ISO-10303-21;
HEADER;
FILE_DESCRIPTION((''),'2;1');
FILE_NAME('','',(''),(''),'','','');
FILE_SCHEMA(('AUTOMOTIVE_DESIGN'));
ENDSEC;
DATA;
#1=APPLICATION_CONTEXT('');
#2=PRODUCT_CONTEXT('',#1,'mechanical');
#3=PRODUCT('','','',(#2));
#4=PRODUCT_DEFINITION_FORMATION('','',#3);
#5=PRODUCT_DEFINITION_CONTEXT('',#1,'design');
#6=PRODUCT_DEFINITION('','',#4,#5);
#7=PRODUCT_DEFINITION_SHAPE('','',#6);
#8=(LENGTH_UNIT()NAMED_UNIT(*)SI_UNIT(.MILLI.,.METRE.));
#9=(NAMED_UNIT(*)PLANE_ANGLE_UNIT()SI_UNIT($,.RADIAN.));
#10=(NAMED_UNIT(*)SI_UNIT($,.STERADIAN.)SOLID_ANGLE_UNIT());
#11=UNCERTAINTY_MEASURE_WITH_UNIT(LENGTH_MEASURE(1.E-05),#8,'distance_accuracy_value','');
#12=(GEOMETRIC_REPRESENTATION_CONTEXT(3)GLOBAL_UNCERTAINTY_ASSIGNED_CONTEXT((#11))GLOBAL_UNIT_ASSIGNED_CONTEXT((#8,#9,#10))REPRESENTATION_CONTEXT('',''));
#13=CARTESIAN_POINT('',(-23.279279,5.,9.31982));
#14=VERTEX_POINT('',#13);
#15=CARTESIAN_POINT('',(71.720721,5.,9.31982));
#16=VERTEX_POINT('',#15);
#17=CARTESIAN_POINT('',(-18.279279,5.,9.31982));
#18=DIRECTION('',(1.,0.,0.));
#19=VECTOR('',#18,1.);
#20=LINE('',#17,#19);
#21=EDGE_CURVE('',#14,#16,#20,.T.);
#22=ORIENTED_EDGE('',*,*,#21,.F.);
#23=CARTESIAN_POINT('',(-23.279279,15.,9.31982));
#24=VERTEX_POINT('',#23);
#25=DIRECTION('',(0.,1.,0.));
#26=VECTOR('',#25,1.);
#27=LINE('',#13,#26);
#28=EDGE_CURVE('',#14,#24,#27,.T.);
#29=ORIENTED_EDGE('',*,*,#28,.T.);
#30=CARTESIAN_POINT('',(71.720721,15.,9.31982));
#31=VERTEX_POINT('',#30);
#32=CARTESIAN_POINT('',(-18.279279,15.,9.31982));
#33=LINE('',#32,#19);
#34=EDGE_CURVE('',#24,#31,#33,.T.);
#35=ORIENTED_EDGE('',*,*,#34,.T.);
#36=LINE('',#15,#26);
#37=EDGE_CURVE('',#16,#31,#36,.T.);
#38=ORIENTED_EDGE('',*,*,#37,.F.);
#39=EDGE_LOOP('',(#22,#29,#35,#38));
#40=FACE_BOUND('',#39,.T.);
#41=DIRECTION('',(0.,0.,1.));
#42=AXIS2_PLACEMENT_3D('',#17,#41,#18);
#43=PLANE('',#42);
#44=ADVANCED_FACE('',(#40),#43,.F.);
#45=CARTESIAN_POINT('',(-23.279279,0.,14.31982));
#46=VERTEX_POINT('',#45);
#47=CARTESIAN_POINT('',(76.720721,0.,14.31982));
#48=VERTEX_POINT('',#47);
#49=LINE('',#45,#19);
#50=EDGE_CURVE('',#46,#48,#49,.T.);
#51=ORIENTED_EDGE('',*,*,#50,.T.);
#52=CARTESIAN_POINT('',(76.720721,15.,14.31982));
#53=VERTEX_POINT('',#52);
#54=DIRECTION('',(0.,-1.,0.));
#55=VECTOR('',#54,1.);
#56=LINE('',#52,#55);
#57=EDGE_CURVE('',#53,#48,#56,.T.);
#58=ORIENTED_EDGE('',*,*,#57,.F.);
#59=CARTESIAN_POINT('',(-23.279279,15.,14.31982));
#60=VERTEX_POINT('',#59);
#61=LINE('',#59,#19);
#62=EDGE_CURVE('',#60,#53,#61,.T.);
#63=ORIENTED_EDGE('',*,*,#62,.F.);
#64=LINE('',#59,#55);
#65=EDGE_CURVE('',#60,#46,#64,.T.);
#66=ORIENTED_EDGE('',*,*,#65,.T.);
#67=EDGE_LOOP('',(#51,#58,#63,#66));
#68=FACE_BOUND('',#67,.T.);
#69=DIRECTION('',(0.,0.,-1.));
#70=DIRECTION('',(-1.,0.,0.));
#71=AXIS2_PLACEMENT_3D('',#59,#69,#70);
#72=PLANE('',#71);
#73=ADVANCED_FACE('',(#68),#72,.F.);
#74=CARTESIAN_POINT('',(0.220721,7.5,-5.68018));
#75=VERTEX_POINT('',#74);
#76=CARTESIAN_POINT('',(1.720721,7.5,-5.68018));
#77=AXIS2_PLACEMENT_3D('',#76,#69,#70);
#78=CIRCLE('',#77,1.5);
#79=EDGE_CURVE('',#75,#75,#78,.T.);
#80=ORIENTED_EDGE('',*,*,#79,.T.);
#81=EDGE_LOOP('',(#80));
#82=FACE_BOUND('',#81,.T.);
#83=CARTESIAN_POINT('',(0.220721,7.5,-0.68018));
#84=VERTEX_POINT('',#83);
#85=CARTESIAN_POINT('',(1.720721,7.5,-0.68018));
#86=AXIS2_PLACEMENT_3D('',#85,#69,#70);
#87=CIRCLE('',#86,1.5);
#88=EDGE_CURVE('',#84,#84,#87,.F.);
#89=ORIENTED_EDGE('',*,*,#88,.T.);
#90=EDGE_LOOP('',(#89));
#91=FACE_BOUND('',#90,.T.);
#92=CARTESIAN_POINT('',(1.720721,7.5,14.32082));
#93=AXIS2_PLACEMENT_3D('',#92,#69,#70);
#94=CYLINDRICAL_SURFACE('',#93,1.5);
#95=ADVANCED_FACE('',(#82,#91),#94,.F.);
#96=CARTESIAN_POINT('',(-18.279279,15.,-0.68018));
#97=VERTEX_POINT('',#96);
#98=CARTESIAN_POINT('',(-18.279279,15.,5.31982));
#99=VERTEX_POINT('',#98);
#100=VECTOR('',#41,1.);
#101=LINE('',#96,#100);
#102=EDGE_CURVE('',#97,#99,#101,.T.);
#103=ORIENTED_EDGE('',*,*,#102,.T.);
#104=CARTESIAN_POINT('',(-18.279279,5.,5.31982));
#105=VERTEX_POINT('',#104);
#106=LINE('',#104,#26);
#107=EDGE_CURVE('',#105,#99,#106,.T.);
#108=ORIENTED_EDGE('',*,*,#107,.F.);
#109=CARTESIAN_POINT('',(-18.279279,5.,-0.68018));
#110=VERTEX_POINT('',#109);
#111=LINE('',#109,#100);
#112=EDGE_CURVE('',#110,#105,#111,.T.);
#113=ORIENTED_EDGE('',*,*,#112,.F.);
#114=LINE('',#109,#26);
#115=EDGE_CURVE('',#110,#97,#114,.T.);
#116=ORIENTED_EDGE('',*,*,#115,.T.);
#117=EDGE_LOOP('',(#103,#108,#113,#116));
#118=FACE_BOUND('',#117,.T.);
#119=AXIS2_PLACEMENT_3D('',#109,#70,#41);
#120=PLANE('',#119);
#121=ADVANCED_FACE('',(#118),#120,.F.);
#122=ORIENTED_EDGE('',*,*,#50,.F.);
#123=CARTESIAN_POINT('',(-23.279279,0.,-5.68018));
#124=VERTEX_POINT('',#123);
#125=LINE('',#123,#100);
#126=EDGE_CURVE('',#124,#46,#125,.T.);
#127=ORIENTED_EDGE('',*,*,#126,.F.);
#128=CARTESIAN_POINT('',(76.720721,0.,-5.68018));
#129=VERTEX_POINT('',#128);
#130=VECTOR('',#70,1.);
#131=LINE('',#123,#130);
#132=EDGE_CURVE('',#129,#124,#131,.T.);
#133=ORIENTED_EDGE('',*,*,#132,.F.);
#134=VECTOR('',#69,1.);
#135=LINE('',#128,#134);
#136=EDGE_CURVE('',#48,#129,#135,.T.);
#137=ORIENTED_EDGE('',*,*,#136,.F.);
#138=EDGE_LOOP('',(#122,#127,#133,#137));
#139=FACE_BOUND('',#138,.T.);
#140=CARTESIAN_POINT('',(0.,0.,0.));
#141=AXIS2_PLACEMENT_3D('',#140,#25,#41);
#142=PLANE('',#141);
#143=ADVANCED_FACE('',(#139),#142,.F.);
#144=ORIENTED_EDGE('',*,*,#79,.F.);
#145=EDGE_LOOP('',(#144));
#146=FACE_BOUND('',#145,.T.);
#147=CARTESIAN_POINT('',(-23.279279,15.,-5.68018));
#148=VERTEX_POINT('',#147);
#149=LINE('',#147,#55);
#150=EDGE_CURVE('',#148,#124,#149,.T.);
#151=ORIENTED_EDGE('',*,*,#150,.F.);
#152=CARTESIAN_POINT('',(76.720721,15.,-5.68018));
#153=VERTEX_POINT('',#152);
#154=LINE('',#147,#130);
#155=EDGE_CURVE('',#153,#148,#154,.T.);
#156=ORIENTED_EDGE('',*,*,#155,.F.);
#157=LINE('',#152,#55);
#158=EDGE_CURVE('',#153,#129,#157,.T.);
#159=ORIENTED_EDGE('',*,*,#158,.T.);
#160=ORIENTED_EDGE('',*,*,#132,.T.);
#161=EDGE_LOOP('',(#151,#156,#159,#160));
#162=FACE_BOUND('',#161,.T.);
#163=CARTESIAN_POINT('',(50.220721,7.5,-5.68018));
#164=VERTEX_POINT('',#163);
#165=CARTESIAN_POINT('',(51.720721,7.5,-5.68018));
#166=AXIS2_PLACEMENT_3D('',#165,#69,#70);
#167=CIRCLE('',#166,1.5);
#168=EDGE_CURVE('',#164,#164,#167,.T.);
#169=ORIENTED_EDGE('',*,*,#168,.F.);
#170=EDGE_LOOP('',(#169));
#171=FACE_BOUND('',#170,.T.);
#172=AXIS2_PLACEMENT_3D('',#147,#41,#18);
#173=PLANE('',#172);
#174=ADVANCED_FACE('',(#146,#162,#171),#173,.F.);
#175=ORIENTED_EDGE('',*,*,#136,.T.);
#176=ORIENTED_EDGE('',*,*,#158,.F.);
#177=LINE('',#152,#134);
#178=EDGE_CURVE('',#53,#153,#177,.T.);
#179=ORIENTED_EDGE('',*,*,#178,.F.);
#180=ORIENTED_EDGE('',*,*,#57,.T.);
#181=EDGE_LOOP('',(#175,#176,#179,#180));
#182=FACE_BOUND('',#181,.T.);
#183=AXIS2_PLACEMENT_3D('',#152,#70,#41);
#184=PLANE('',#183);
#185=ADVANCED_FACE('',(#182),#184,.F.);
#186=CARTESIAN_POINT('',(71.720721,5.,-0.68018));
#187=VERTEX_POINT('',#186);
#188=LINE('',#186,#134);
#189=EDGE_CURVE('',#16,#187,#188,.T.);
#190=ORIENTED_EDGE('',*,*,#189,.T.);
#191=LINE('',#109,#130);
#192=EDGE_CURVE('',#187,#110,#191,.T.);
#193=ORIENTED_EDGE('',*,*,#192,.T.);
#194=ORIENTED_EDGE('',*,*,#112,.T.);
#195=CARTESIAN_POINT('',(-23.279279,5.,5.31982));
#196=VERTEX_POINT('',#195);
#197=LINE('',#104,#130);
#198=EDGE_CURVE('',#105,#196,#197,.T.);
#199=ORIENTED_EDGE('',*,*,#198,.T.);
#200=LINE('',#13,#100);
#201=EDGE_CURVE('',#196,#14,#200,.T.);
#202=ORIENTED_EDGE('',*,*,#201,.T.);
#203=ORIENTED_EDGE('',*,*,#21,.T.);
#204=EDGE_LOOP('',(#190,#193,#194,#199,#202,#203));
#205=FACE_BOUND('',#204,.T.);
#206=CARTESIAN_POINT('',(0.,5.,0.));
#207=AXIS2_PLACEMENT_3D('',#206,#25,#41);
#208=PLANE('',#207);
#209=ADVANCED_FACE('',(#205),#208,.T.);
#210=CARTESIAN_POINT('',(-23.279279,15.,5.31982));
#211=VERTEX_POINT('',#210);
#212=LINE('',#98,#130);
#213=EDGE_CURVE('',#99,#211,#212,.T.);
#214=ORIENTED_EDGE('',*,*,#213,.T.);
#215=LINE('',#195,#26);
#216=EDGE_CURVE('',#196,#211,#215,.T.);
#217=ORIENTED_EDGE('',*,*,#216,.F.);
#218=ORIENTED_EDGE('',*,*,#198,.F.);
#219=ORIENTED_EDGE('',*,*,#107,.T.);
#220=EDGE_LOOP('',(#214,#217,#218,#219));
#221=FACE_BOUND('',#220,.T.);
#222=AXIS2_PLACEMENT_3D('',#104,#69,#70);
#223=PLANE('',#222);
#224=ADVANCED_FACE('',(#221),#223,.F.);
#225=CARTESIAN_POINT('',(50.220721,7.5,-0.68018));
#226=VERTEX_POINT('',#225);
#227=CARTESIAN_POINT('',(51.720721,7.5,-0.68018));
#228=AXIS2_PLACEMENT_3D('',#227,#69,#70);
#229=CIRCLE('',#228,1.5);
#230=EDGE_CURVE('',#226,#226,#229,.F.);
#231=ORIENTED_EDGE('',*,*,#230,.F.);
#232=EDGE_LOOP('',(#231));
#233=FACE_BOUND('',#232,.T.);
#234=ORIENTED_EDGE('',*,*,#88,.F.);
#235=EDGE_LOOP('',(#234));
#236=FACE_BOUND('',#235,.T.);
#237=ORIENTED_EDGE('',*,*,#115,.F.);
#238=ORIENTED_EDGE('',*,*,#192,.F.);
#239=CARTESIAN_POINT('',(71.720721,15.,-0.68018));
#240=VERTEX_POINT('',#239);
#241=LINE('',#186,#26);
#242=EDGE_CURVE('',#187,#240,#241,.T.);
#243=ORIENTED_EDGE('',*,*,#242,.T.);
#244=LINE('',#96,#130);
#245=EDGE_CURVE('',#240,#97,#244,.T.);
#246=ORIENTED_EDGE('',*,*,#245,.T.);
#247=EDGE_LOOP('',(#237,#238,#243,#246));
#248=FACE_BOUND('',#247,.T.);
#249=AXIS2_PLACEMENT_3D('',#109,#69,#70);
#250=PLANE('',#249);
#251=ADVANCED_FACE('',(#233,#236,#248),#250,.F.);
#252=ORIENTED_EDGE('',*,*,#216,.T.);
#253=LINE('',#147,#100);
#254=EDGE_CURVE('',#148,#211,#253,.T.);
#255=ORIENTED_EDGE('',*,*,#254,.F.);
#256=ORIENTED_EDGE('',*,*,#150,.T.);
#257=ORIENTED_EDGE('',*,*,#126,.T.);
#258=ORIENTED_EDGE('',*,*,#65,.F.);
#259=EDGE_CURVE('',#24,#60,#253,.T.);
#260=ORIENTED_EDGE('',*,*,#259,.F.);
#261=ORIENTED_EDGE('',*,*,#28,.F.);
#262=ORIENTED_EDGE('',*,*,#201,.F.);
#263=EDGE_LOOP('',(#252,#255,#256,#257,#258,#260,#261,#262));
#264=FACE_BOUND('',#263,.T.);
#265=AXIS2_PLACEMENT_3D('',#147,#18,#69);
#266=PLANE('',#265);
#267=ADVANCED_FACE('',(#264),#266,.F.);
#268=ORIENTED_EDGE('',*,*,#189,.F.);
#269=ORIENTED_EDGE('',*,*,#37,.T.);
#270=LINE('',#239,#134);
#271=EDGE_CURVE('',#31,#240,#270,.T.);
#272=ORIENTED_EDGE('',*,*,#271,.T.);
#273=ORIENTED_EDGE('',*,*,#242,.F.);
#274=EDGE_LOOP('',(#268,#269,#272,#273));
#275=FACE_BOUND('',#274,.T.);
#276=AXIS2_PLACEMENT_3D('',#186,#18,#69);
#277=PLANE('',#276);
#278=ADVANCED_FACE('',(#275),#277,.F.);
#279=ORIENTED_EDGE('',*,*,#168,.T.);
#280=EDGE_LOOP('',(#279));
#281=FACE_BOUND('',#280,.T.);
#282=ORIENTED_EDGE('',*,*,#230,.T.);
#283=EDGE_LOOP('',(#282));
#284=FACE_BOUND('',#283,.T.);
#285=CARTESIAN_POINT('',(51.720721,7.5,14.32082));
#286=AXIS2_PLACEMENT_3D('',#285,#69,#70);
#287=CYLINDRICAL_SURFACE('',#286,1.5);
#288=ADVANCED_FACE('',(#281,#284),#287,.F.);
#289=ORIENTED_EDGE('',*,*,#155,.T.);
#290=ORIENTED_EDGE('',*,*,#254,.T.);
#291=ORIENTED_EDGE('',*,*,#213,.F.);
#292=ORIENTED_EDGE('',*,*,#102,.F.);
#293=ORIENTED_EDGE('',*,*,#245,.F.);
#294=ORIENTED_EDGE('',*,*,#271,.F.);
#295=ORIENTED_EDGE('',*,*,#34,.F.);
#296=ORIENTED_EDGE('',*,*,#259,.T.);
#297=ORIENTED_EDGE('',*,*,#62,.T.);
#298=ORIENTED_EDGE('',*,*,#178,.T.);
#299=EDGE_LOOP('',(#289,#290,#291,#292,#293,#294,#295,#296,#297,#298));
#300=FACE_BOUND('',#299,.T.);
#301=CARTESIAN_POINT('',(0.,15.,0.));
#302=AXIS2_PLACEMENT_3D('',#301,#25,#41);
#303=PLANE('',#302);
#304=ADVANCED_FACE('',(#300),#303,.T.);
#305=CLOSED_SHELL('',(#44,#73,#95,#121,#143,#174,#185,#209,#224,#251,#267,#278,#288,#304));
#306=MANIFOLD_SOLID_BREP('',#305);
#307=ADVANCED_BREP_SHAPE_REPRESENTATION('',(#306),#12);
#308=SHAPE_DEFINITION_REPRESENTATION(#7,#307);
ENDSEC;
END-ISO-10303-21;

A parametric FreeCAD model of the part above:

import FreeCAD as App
import Part
import Sketcher
from FreeCAD import Vector


def add_polygon(sketch, points):
    """Adds a closed chain of lines whose ends are joined by coincident constraints."""
    first, n = sketch.GeometryCount, len(points)
    for a, b in zip(points, points[1:] + points[:1]):
        sketch.addGeometry(Part.LineSegment(App.Vector(*a, 0), App.Vector(*b, 0)), False)
    for i in range(n):
        sketch.addConstraint(Sketcher.Constraint("Coincident", first + i, 2, first + (i + 1) % n, 1))

doc = App.newDocument("Part")
params = doc.addObject("Spreadsheet::Sheet", "Params")
for row, (alias, value) in enumerate([
    ("sketch1_width", "100 mm"),
    ("sketch1_height", "20 mm"),
    ("pad1_length", "15 mm"),
    ("sketch2_width", "90 mm"),
    ("sketch2_height", "10 mm"),
    ("pocket1_length", "10 mm"),
    ("sketch3_width", "5 mm"),
    ("sketch3_height", "4 mm"),
    ("pocket2_length", "10 mm"),
    ("sketch4_diameter", "3 mm"),
    ("sketch5_diameter", "3 mm"),
], start=1):
    params.set(f"A{row}", alias)
    params.set(f"B{row}", "=" + value)
    params.setAlias(f"B{row}", alias)

body = doc.addObject("PartDesign::Body", "Body")

sketch1 = body.newObject("Sketcher::SketchObject", "Sketch")
sketch1.AttachmentSupport = (doc.getObject("XZ_Plane"), [""])
sketch1.MapMode = "FlatFace"
add_polygon(sketch1, [(-23, -6), (-23, 14), (77, 14), (77, -6)])
sketch1.addConstraint(Sketcher.Constraint("Vertical", 0))
sketch1.addConstraint(Sketcher.Constraint("Horizontal", 1))
sketch1.addConstraint(Sketcher.Constraint("Vertical", 2))
sketch1.addConstraint(Sketcher.Constraint("Horizontal", 3))
sketch1.addConstraint(Sketcher.Constraint("DistanceX", 1, 1, 1, 2, 100.0))
sketch1.addConstraint(Sketcher.Constraint("DistanceY", 0, 1, 0, 2, 20.0))
sketch1.addConstraint(Sketcher.Constraint("DistanceX", 0, 2, -1, 1, 23.279279))
sketch1.addConstraint(Sketcher.Constraint("DistanceY", -1, 1, 0, 2, 14.31982))
sketch1.setExpression("Constraints[8]", "Params.sketch1_width")
sketch1.setExpression("Constraints[9]", "Params.sketch1_height")
pad1 = body.newObject("PartDesign::Pad", "Pad")
pad1.Profile = sketch1
pad1.setExpression("Length", "Params.pad1_length")
pad1.Reversed = True

sketch2 = body.newObject("Sketcher::SketchObject", "Sketch001")
sketch2.AttachmentSupport = (doc.getObject("XZ_Plane"), [""])
sketch2.MapMode = "FlatFace"
sketch2.AttachmentOffset = App.Placement(Vector(0, 0, -15), App.Rotation())
add_polygon(sketch2, [(-18, -1), (-18, 9), (72, 9), (72, -1)])
sketch2.addConstraint(Sketcher.Constraint("Vertical", 0))
sketch2.addConstraint(Sketcher.Constraint("Horizontal", 1))
sketch2.addConstraint(Sketcher.Constraint("Vertical", 2))
sketch2.addConstraint(Sketcher.Constraint("Horizontal", 3))
sketch2.addConstraint(Sketcher.Constraint("DistanceX", 1, 1, 1, 2, 90.0))
sketch2.addConstraint(Sketcher.Constraint("DistanceY", 0, 1, 0, 2, 10.0))
sketch2.addConstraint(Sketcher.Constraint("DistanceX", 0, 2, -1, 1, 18.279279))
sketch2.addConstraint(Sketcher.Constraint("DistanceY", -1, 1, 0, 2, 9.31982))
sketch2.setExpression("Constraints[8]", "Params.sketch2_width")
sketch2.setExpression("Constraints[9]", "Params.sketch2_height")
pocket1 = body.newObject("PartDesign::Pocket", "Pocket")
pocket1.Profile = sketch2
pocket1.setExpression("Length", "Params.pocket1_length")
pocket1.Reversed = True

sketch3 = body.newObject("Sketcher::SketchObject", "Sketch002")
sketch3.AttachmentSupport = (doc.getObject("XZ_Plane"), [""])
sketch3.MapMode = "FlatFace"
sketch3.AttachmentOffset = App.Placement(Vector(0, 0, -15), App.Rotation())
add_polygon(sketch3, [(-23.3, 5.3), (-23.3, 9.3), (-18.3, 9.3), (-18.3, 5.3)])
sketch3.addConstraint(Sketcher.Constraint("Vertical", 0))
sketch3.addConstraint(Sketcher.Constraint("Horizontal", 1))
sketch3.addConstraint(Sketcher.Constraint("Vertical", 2))
sketch3.addConstraint(Sketcher.Constraint("Horizontal", 3))
sketch3.addConstraint(Sketcher.Constraint("DistanceX", 1, 1, 1, 2, 5.0))
sketch3.addConstraint(Sketcher.Constraint("DistanceY", 0, 1, 0, 2, 4.0))
sketch3.addConstraint(Sketcher.Constraint("DistanceX", 0, 2, -1, 1, 23.279279))
sketch3.addConstraint(Sketcher.Constraint("DistanceY", -1, 1, 0, 2, 9.31982))
sketch3.setExpression("Constraints[8]", "Params.sketch3_width")
sketch3.setExpression("Constraints[9]", "Params.sketch3_height")
pocket2 = body.newObject("PartDesign::Pocket", "Pocket001")
pocket2.Profile = sketch3
pocket2.setExpression("Length", "Params.pocket2_length")
pocket2.Reversed = True

sketch4 = body.newObject("Sketcher::SketchObject", "Sketch003")
sketch4.AttachmentSupport = (doc.getObject("XY_Plane"), [""])
sketch4.MapMode = "FlatFace"
sketch4.AttachmentOffset = App.Placement(Vector(0, 0, -5.68018), App.Rotation())
sketch4.addGeometry(Part.Circle(Vector(1.7, 7.5, 0), Vector(0, 0, 1), 1.5), False)
sketch4.addConstraint(Sketcher.Constraint("Diameter", 0, 3.0))
sketch4.addConstraint(Sketcher.Constraint("DistanceY", -1, 1, 0, 3, 7.5))
sketch4.addConstraint(Sketcher.Constraint("DistanceX", -1, 1, 0, 3, 1.720721))
sketch4.setExpression("Constraints[0]", "Params.sketch4_diameter")
pocket3 = body.newObject("PartDesign::Pocket", "Pocket002")
pocket3.Profile = sketch4
pocket3.Type = "UpToFirst"
pocket3.Reversed = True

sketch5 = body.newObject("Sketcher::SketchObject", "Sketch004")
sketch5.AttachmentSupport = (doc.getObject("XY_Plane"), [""])
sketch5.MapMode = "FlatFace"
sketch5.AttachmentOffset = App.Placement(Vector(0, 0, -5.68018), App.Rotation())
sketch5.addGeometry(Part.Circle(Vector(51.7, 7.5, 0), Vector(0, 0, 1), 1.5), False)
sketch5.addConstraint(Sketcher.Constraint("Diameter", 0, 3.0))
sketch5.addConstraint(Sketcher.Constraint("DistanceY", -1, 1, 0, 3, 7.5))
sketch5.addConstraint(Sketcher.Constraint("DistanceX", -1, 1, 0, 3, 51.720721))
sketch5.setExpression("Constraints[0]", "Params.sketch5_diameter")
pocket4 = body.newObject("PartDesign::Pocket", "Pocket003")
pocket4.Profile = sketch5
pocket4.Type = "UpToFirst"
pocket4.Reversed = True

doc.recompute()
